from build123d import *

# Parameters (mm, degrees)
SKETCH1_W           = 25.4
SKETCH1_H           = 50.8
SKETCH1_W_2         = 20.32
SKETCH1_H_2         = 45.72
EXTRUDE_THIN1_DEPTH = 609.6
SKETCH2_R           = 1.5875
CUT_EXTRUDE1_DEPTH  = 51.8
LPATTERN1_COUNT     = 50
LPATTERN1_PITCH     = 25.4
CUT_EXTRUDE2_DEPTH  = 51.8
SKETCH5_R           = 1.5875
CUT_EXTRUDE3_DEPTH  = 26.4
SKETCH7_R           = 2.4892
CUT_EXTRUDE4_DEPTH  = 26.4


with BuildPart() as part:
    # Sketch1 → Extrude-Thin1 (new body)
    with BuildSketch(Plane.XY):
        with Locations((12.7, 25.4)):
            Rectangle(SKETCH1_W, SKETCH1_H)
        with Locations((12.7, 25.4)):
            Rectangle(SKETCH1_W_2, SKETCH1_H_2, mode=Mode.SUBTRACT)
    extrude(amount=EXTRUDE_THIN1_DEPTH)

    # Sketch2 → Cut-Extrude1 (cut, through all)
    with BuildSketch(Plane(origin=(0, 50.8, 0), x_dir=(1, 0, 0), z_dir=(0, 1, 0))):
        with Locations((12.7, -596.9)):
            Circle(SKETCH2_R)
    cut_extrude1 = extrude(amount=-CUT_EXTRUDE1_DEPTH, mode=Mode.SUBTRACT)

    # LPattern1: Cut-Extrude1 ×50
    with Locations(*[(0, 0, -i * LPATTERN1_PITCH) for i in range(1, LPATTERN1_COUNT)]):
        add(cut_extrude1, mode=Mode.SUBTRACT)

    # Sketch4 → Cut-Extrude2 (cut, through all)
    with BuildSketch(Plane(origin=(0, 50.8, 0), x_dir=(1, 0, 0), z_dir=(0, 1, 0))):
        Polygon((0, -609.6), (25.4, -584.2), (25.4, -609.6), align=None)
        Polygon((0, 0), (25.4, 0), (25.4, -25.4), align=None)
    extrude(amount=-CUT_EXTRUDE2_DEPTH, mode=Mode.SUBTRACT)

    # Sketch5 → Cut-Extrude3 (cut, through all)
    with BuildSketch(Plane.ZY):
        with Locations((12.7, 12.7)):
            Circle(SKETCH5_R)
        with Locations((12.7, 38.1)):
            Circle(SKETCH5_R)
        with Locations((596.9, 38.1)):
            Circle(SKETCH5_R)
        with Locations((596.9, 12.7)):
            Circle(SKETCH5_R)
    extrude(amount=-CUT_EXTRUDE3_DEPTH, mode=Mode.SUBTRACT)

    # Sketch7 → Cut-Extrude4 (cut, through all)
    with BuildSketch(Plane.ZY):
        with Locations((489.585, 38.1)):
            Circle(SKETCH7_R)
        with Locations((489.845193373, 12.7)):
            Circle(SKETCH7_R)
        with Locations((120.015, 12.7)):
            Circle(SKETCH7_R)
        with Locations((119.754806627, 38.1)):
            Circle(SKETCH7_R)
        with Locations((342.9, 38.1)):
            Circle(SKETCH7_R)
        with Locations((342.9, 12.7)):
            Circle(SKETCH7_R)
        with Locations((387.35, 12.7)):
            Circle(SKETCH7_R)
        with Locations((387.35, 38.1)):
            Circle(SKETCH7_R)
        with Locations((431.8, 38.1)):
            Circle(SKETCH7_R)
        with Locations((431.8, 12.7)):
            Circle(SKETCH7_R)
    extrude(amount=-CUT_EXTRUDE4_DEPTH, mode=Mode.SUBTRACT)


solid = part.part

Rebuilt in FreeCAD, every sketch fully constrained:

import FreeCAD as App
import Part
import Sketcher

V = App.Vector
Q = App.Units.Quantity


def add_polygon(sketch, points):
    """Adds a closed chain of lines whose ends are joined by coincident constraints."""
    first, n = sketch.GeometryCount, len(points)
    for a, b in zip(points, points[1:] + points[:1]):
        sketch.addGeometry(Part.LineSegment(App.Vector(*a, 0), App.Vector(*b, 0)), False)
    for i in range(n):
        sketch.addConstraint(Sketcher.Constraint("Coincident", first + i, 2, first + (i + 1) % n, 1))

doc = App.newDocument("Part")
params = doc.addObject("Spreadsheet::Sheet", "Params")
for row, (alias, value) in enumerate([
    ("sketch1_width", "1 in"),
    ("sketch1_height", "2 in"),
    ("sketch1_width2", "0.8 in"),
    ("sketch1_height2", "1.8 in"),
    ("pad1_length", "24 in"),
    ("sketch2_diameter", "0.125 in"),
    ("linearpattern_pitch", "1 in"),
    ("sketch3_width", "1 in"),
    ("sketch4_diameter", "0.125 in"),
    ("sketch5_diameter", "0.196 in"),
], start=1):
    params.set(f"A{row}", alias)
    params.set(f"B{row}", "=" + value)
    params.setAlias(f"B{row}", alias)

body = doc.addObject("PartDesign::Body", "Body")

sketch1 = body.newObject("Sketcher::SketchObject", "Sketch")
sketch1.AttachmentSupport = (doc.getObject("XY_Plane"), [""])
sketch1.MapMode = "FlatFace"
add_polygon(sketch1, [(0, 50.8), (0, 0), (25.4, 0), (25.4, 50.8)])
add_polygon(sketch1, [(22.86, 2.54), (2.54, 2.54), (2.54, 48.26), (22.86, 48.26)])
sketch1.addConstraint([
    Sketcher.Constraint("Vertical", 0),
    Sketcher.Constraint("Horizontal", 1),
    Sketcher.Constraint("Vertical", 2),
    Sketcher.Constraint("Horizontal", 3),
    Sketcher.Constraint("Horizontal", 4),
    Sketcher.Constraint("Vertical", 5),
    Sketcher.Constraint("Horizontal", 6),
    Sketcher.Constraint("Vertical", 7),
    Sketcher.Constraint("Coincident", 0, 2, -1, 1),
    Sketcher.Constraint("DistanceX", 1, 1, 1, 2, Q("1 in")),
    Sketcher.Constraint("DistanceY", 0, 2, 0, 1, Q("2 in")),
    Sketcher.Constraint("DistanceX", 4, 2, 4, 1, Q("0.8 in")),
    Sketcher.Constraint("DistanceY", 5, 1, 5, 2, Q("1.8 in")),
    Sketcher.Constraint("DistanceX", -1, 1, 4, 2, Q("0.1 in")),
    Sketcher.Constraint("DistanceY", -1, 1, 4, 2, Q("0.1 in")),
])
sketch1.setExpression("Constraints[17]", "Params.sketch1_width")
sketch1.setExpression("Constraints[18]", "Params.sketch1_height")
sketch1.setExpression("Constraints[19]", "Params.sketch1_width2")
sketch1.setExpression("Constraints[20]", "Params.sketch1_height2")
pad1 = body.newObject("PartDesign::Pad", "Pad")
pad1.Profile = sketch1
pad1.setExpression("Length", "Params.pad1_length")

sketch2 = body.newObject("Sketcher::SketchObject", "Sketch001")
sketch2.AttachmentSupport = (doc.getObject("XZ_Plane"), [""])
sketch2.MapMode = "FlatFace"
sketch2.AttachmentOffset = App.Placement(V(0, 0, -2 * 25.4), App.Rotation())
sketch2.addGeometry(Part.Circle(V(12.7, 596.9, 0), V(0, 0, 1), 1.5875), False)
sketch2.addConstraint([
    Sketcher.Constraint("Diameter", 0, Q("0.125 in")),
    Sketcher.Constraint("DistanceX", -1, 1, 0, 3, Q("0.5 in")),
    Sketcher.Constraint("DistanceY", -1, 1, 0, 3, Q("23.5 in")),
])
sketch2.setExpression("Constraints[0]", "Params.sketch2_diameter")
pocket1 = body.newObject("PartDesign::Pocket", "Pocket")
pocket1.Profile = sketch2
pocket1.Type = "ThroughAll"
pocket1.Reversed = True
doc.recompute()

linearpattern = body.newObject("PartDesign::LinearPattern", "LinearPattern")
linearpattern.Originals = [pocket1]
linearpattern.Direction = (doc.getObject("Z_Axis"), [""])
linearpattern.Mode = "offset"
linearpattern.setExpression("Offset", "Params.linearpattern_pitch")
linearpattern.Occurrences = 50
linearpattern.Reversed = True
body.Tip = linearpattern

sketch3 = body.newObject("Sketcher::SketchObject", "Sketch002")
sketch3.AttachmentSupport = (doc.getObject("XZ_Plane"), [""])
sketch3.MapMode = "FlatFace"
sketch3.AttachmentOffset = App.Placement(V(0, 0, -2 * 25.4), App.Rotation())
add_polygon(sketch3, [(25.4, 584.2), (0, 609.6), (25.4, 609.6)])
add_polygon(sketch3, [(25.4, 0), (0, 0), (25.4, 25.4)])
sketch3.addConstraint([
    Sketcher.Constraint("Horizontal", 1),
    Sketcher.Constraint("Vertical", 2),
    Sketcher.Constraint("Horizontal", 3),
    Sketcher.Constraint("Vertical", 5),
    Sketcher.Constraint("Coincident", 3, 2, -1, 1),
    Sketcher.Constraint("PointOnObject", 0, 2, -2),
    Sketcher.Constraint("Perpendicular", 0, 4),
    Sketcher.Constraint("Vertical", 2, 2, 4, 2),
    Sketcher.Constraint("Equal", 3, 2),
    Sketcher.Constraint("DistanceX", 1, 1, 1, 2, Q("1 in")),
    Sketcher.Constraint("DistanceY", -1, 1, 0, 2, Q("24 in")),
])
sketch3.setExpression("Constraints[15]", "Params.sketch3_width")
pocket2 = body.newObject("PartDesign::Pocket", "Pocket001")
pocket2.Profile = sketch3
pocket2.Type = "ThroughAll"
pocket2.Reversed = True

sketch4 = body.newObject("Sketcher::SketchObject", "Sketch003")
sketch4.AttachmentSupport = (doc.getObject("YZ_Plane"), [""])
sketch4.MapMode = "FlatFace"
sketch4.addGeometry([
    Part.Circle(V(12.7, 12.7, 0), V(0, 0, 1), 1.5875),
    Part.Circle(V(38.1, 12.7, 0), V(0, 0, 1), 1.5875),
    Part.Circle(V(38.1, 596.9, 0), V(0, 0, 1), 1.5875),
    Part.Circle(V(12.7, 596.9, 0), V(0, 0, 1), 1.5875),
], False)
sketch4.addConstraint([
    Sketcher.Constraint("Equal", 0, 1),
    Sketcher.Constraint("Equal", 1, 2),
    Sketcher.Constraint("Equal", 2, 3),
    Sketcher.Constraint("Horizontal", 0, 3, 1, 3),
    Sketcher.Constraint("Horizontal", 2, 3, 3, 3),
    Sketcher.Constraint("Vertical", 1, 3, 2, 3),
    Sketcher.Constraint("Vertical", 0, 3, 3, 3),
    Sketcher.Constraint("Diameter", 0, Q("0.125 in")),
    Sketcher.Constraint("DistanceX", 0, 3, 1, 3, Q("1 in")),
    Sketcher.Constraint("DistanceY", 1, 3, 2, 3, Q("23 in")),
    Sketcher.Constraint("DistanceX", -1, 1, 0, 3, Q("0.5 in")),
    Sketcher.Constraint("DistanceY", -1, 1, 0, 3, Q("0.5 in")),
])
sketch4.setExpression("Constraints[7]", "Params.sketch4_diameter")
pocket3 = body.newObject("PartDesign::Pocket", "Pocket002")
pocket3.Profile = sketch4
pocket3.Type = "ThroughAll"
pocket3.Reversed = True

sketch5 = body.newObject("Sketcher::SketchObject", "Sketch004")
sketch5.AttachmentSupport = (doc.getObject("YZ_Plane"), [""])
sketch5.MapMode = "FlatFace"
sketch5.addGeometry([
    Part.Circle(V(38.1, 489.585, 0), V(0, 0, 1), 2.4892),
    Part.Circle(V(12.7, 489.845193, 0), V(0, 0, 1), 2.4892),
    Part.Circle(V(12.7, 120.015, 0), V(0, 0, 1), 2.4892),
    Part.Circle(V(38.1, 119.754807, 0), V(0, 0, 1), 2.4892),
    Part.Circle(V(38.1, 342.9, 0), V(0, 0, 1), 2.4892),
    Part.Circle(V(12.7, 342.9, 0), V(0, 0, 1), 2.4892),
    Part.Circle(V(12.7, 387.35, 0), V(0, 0, 1), 2.4892),
    Part.Circle(V(38.1, 387.35, 0), V(0, 0, 1), 2.4892),
    Part.Circle(V(38.1, 431.8, 0), V(0, 0, 1), 2.4892),
    Part.Circle(V(12.7, 431.8, 0), V(0, 0, 1), 2.4892),
], False)
sketch5.addConstraint([
    Sketcher.Constraint("Equal", 0, 1),
    Sketcher.Constraint("Equal", 1, 2),
    Sketcher.Constraint("Equal", 2, 3),
    Sketcher.Constraint("Equal", 3, 4),
    Sketcher.Constraint("Equal", 4, 5),
    Sketcher.Constraint("Equal", 5, 6),
    Sketcher.Constraint("Equal", 6, 7),
    Sketcher.Constraint("Equal", 7, 8),
    Sketcher.Constraint("Equal", 8, 9),
    Sketcher.Constraint("Horizontal", 4, 3, 5, 3),
    Sketcher.Constraint("Horizontal", 6, 3, 7, 3),
    Sketcher.Constraint("Horizontal", 8, 3, 9, 3),
    Sketcher.Constraint("Vertical", 1, 3, 2, 3),
    Sketcher.Constraint("Vertical", 0, 3, 3, 3),
    Sketcher.Constraint("Vertical", 3, 3, 4, 3),
    Sketcher.Constraint("Vertical", 2, 3, 5, 3),
    Sketcher.Constraint("Vertical", 5, 3, 6, 3),
    Sketcher.Constraint("Vertical", 4, 3, 7, 3),
    Sketcher.Constraint("Vertical", 7, 3, 8, 3),
    Sketcher.Constraint("Vertical", 6, 3, 9, 3),
    Sketcher.Constraint("Diameter", 0, Q("0.196 in")),
    Sketcher.Constraint("DistanceY", -1, 1, 8, 3, Q("17 in")),
    Sketcher.Constraint("DistanceX", 1, 3, 0, 3, Q("1 in")),
    Sketcher.Constraint("DistanceX", -1, 1, 0, 3, Q("1.5 in")),
    Sketcher.Constraint("DistanceY", -1, 1, 4, 3, Q("13.5 in")),
    Sketcher.Constraint("DistanceY", -1, 1, 6, 3, Q("15.25 in")),
    Sketcher.Constraint("DistanceY", 2, 3, 0, 3, Q("14.55 in")),
    Sketcher.Constraint("DistanceY", -1, 1, 0, 3, Q("19.275 in")),
    Sketcher.Constraint("DistanceY", -1, 1, 1, 3, Q("489.845193 mm")),
    Sketcher.Constraint("DistanceY", -1, 1, 3, 3, Q("119.754807 mm")),
])
sketch5.setExpression("Constraints[20]", "Params.sketch5_diameter")
pocket4 = body.newObject("PartDesign::Pocket", "Pocket003")
pocket4.Profile = sketch5
pocket4.Type = "ThroughAll"
pocket4.Reversed = True

doc.recompute()
